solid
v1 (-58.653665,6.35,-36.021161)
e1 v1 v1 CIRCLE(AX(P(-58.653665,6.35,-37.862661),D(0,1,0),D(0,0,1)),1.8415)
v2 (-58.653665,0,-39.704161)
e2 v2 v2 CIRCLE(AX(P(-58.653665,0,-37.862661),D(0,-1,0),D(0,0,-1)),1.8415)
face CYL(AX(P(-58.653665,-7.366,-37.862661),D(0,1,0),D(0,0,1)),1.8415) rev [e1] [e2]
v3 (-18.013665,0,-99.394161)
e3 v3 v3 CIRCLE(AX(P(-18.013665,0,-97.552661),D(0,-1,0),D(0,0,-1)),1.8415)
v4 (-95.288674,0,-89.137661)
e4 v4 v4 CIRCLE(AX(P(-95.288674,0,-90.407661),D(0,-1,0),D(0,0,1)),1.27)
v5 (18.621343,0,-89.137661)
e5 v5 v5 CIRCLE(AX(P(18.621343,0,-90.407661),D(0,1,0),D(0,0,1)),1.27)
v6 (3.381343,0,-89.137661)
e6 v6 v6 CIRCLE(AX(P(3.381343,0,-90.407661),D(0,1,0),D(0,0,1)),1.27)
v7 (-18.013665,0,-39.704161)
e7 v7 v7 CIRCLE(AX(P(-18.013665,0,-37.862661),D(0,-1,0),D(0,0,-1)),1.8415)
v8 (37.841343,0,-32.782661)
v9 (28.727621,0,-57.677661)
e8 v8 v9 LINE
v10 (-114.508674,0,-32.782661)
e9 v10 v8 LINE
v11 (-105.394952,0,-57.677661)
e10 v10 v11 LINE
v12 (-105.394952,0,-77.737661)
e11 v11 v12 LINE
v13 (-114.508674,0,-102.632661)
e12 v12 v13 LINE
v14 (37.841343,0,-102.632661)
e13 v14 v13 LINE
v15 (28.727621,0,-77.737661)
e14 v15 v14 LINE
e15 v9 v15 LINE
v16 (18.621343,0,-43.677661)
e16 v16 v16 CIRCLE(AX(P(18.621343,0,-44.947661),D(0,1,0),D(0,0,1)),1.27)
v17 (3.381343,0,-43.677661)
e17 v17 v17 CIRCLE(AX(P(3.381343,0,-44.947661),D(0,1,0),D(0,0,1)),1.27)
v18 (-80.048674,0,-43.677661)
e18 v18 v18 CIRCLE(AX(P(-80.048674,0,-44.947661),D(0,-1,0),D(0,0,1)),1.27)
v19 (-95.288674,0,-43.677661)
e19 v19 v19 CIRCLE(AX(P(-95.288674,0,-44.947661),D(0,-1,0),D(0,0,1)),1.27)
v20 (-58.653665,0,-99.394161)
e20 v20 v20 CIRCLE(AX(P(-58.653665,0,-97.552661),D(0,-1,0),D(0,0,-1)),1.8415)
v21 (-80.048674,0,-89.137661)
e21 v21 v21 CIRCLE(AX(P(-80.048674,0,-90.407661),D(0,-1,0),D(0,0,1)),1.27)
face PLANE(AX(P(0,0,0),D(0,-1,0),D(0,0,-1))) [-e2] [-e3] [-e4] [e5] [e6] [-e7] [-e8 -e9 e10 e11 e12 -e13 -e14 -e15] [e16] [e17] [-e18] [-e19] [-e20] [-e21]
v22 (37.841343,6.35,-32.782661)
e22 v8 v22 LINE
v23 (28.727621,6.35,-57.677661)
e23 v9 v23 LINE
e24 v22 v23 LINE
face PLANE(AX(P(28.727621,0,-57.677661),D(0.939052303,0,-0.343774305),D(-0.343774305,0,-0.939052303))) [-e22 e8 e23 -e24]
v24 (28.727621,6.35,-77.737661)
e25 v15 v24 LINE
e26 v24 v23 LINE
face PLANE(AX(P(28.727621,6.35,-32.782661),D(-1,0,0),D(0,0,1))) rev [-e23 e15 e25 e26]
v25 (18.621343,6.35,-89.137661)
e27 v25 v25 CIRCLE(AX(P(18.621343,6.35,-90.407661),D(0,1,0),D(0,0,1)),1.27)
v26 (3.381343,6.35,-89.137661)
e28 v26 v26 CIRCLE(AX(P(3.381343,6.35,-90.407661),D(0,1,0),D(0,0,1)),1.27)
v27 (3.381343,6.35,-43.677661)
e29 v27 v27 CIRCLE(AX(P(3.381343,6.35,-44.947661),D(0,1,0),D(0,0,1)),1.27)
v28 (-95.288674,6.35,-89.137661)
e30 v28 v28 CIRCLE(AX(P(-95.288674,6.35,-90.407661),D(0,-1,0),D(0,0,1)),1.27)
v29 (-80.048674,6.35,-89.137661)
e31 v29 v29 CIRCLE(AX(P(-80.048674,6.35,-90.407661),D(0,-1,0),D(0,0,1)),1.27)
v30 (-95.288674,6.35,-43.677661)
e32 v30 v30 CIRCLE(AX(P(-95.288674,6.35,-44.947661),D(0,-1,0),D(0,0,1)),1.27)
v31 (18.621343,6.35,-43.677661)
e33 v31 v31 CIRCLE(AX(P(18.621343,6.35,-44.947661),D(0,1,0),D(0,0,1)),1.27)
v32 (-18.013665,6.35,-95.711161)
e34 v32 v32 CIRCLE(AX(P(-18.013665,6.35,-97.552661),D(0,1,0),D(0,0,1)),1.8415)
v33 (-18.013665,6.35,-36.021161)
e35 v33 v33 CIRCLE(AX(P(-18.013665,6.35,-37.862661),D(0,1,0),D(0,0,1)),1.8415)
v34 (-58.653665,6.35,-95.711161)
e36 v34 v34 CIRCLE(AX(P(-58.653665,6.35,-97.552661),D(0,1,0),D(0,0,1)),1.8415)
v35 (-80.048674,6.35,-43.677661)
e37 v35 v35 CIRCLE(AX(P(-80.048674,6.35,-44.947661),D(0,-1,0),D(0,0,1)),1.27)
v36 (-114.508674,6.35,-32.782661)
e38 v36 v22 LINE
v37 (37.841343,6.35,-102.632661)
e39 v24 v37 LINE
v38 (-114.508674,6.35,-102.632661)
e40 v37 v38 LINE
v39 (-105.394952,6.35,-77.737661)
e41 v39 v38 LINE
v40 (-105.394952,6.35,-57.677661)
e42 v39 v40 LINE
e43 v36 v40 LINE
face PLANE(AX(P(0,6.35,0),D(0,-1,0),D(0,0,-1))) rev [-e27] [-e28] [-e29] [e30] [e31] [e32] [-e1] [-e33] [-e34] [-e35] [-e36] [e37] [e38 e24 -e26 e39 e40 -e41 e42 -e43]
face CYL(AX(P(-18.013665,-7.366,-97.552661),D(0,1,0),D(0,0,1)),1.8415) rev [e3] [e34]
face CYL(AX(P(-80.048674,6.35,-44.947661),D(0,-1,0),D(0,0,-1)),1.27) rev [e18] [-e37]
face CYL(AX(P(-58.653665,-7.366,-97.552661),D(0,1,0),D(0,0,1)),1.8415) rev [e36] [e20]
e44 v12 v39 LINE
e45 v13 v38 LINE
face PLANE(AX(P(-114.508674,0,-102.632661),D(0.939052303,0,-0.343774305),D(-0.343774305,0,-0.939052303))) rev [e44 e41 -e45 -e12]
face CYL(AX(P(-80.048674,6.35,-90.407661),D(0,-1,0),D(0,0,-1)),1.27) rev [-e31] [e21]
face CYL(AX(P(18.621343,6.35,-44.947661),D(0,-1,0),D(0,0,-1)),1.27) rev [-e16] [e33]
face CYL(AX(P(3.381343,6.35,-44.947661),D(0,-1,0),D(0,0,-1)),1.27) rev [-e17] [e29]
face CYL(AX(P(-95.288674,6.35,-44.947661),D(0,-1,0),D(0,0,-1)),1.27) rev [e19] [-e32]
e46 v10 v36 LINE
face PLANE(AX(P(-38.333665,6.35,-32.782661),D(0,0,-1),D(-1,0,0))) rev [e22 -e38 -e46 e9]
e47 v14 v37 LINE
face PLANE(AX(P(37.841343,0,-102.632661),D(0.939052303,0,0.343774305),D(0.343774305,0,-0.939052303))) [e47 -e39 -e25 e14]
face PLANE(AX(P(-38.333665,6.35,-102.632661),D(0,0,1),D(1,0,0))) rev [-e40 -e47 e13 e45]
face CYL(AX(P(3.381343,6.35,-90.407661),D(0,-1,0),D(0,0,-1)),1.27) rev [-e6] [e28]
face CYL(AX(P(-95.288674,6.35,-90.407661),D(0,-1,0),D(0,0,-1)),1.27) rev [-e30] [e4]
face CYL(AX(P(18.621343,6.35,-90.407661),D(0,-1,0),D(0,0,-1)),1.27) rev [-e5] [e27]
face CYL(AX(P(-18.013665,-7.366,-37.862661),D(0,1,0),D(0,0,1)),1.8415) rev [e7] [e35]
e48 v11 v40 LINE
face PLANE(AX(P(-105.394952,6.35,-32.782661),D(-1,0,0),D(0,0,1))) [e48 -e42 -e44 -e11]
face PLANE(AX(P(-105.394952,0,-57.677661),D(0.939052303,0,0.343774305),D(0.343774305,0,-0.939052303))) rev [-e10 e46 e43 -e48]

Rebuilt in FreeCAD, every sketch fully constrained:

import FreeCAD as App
import Part
import Sketcher
from FreeCAD import Vector
Q = App.Units.Quantity

doc = App.newDocument("Part")
params = doc.addObject("Spreadsheet::Sheet", "Params")
for row, (alias, value) in enumerate([
    ("sketch1_diameter", "0.1 in"),
    ("sketch1_height", "2.75 in"),
    ("pad1_length", "0.25 in"),
    ("pad2_length", "0.5 in"),
    ("pad3_length", "0.25 in"),
    ("sketch5_diameter", "0.145 in"),
    ("pocket2_length", "0.54 in"),
], start=1):
    params.set(f"A{row}", alias)
    params.set(f"B{row}", "=" + value)
    params.setAlias(f"B{row}", alias)

body = doc.addObject("PartDesign::Body", "Body")

sketch1 = body.newObject("Sketcher::SketchObject", "Sketch")
sketch1.AttachmentSupport = (doc.getObject("XZ_Plane"), [""])
sketch1.MapMode = "FlatFace"
sketch1.addGeometry([
    Part.LineSegment(Vector(-38.3, -102.6, 0), Vector(-38.3, -32.8, 0)),
    Part.LineSegment(Vector(-38.3, -32.8, 0), Vector(28.7, -32.8, 0)),
    Part.LineSegment(Vector(28.7, -32.8, 0), Vector(28.7, -102.6, 0)),
    Part.LineSegment(Vector(28.7, -102.6, 0), Vector(-38.3, -102.6, 0)),
    Part.Circle(Vector(3.4, -44.9, 0), Vector(0, 0, 1), 1.3),
    Part.Circle(Vector(18.6, -44.9, 0), Vector(0, 0, 1), 1.3),
    Part.Circle(Vector(3.4, -90.4, 0), Vector(0, 0, 1), 1.3),
    Part.Circle(Vector(18.6, -90.4, 0), Vector(0, 0, 1), 1.3),
], False)
sketch1.addConstraint([
    Sketcher.Constraint("Coincident", 0, 2, 1, 1),
    Sketcher.Constraint("Coincident", 1, 2, 2, 1),
    Sketcher.Constraint("Coincident", 2, 2, 3, 1),
    Sketcher.Constraint("Coincident", 3, 2, 0, 1),
    Sketcher.Constraint("Vertical", 0),
    Sketcher.Constraint("Horizontal", 1),
    Sketcher.Constraint("Vertical", 2),
    Sketcher.Constraint("Horizontal", 3),
    Sketcher.Constraint("Equal", 4, 5),
    Sketcher.Constraint("Equal", 5, 6),
    Sketcher.Constraint("Equal", 6, 7),
    Sketcher.Constraint("Horizontal", 4, 3, 5, 3),
    Sketcher.Constraint("Horizontal", 6, 3, 7, 3),
    Sketcher.Constraint("Vertical", 4, 3, 6, 3),
    Sketcher.Constraint("Vertical", 5, 3, 7, 3),
    Sketcher.Constraint("Diameter", 4, Q("0.1 in")),
    Sketcher.Constraint("DistanceY", 0, 1, 0, 2, Q("2.75 in")),
    Sketcher.Constraint("DistanceX", 4, 3, 5, 3, Q("0.6 in")),
    Sketcher.Constraint("DistanceY", 6, 3, 4, 3, Q("45.46 mm")),
    Sketcher.Constraint("DistanceY", 4, 3, 0, 2, Q("12.165 mm")),
    Sketcher.Constraint("DistanceX", 1, 1, 1, 2, Q("67.061287 mm")),
    Sketcher.Constraint("DistanceY", 4, 3, -1, 1, Q("44.947661 mm")),
    Sketcher.Constraint("DistanceX", -1, 1, 1, 2, Q("28.727621 mm")),
    Sketcher.Constraint("DistanceX", 0, 2, 4, 3, Q("41.715009 mm")),
])
sketch1.setExpression("Constraints[15]", "Params.sketch1_diameter")
sketch1.setExpression("Constraints[16]", "Params.sketch1_height")
pad1 = body.newObject("PartDesign::Pad", "Pad")
pad1.Profile = sketch1
pad1.setExpression("Length", "Params.pad1_length")
pad1.Reversed = True

sketch2 = body.newObject("Sketcher::SketchObject", "Sketch001")
sketch2.AttachmentSupport = (doc.getObject("XZ_Plane"), [""])
sketch2.MapMode = "FlatFace"
sketch2.AttachmentOffset = App.Placement(Vector(0, 0, -0.25 * 25.4), App.Rotation())
sketch2.addGeometry([
    Part.LineSegment(Vector(8, -78, 0), Vector(8, -58, 0)),
    Part.LineSegment(Vector(8, -58, 0), Vector(29, -58, 0)),
    Part.LineSegment(Vector(29, -58, 0), Vector(29, -78, 0)),
    Part.LineSegment(Vector(29, -78, 0), Vector(8, -78, 0)),
], False)
sketch2.addConstraint([
    Sketcher.Constraint("Coincident", 0, 2, 1, 1),
    Sketcher.Constraint("Coincident", 1, 2, 2, 1),
    Sketcher.Constraint("Coincident", 2, 2, 3, 1),
    Sketcher.Constraint("Coincident", 3, 2, 0, 1),
    Sketcher.Constraint("Vertical", 0),
    Sketcher.Constraint("Horizontal", 1),
    Sketcher.Constraint("Vertical", 2),
    Sketcher.Constraint("Horizontal", 3),
    Sketcher.Constraint("DistanceY", 0, 1, 0, 2, Q("20.06 mm")),
    Sketcher.Constraint("DistanceX", 1, 1, 1, 2, Q("20.976278 mm")),
    Sketcher.Constraint("DistanceY", 0, 2, -1, 1, Q("57.677661 mm")),
    Sketcher.Constraint("DistanceX", -1, 1, 1, 2, Q("28.727621 mm")),
])
pad2 = body.newObject("PartDesign::Pad", "Pad001")
pad2.Profile = sketch2
pad2.setExpression("Length", "Params.pad2_length")
pad2.Reversed = True

sketch3 = body.newObject("Sketcher::SketchObject", "Sketch002")
sketch3.AttachmentSupport = (doc.getObject("XZ_Plane"), [""])
sketch3.MapMode = "FlatFace"
sketch3.AttachmentOffset = App.Placement(Vector(0, 0, -0.25 * 25.4), App.Rotation())
sketch3.addGeometry([
    Part.LineSegment(Vector(29, -78, 0), Vector(38, -103, 0)),
    Part.LineSegment(Vector(38, -103, 0), Vector(29, -103, 0)),
    Part.LineSegment(Vector(29, -103, 0), Vector(29, -78, 0)),
    Part.LineSegment(Vector(38, -33, 0), Vector(29, -58, 0)),
    Part.LineSegment(Vector(29, -58, 0), Vector(29, -33, 0)),
    Part.LineSegment(Vector(29, -33, 0), Vector(38, -33, 0)),
], False)
sketch3.addConstraint([
    Sketcher.Constraint("Coincident", 0, 2, 1, 1),
    Sketcher.Constraint("Coincident", 1, 2, 2, 1),
    Sketcher.Constraint("Coincident", 2, 2, 0, 1),
    Sketcher.Constraint("Coincident", 3, 2, 4, 1),
    Sketcher.Constraint("Coincident", 4, 2, 5, 1),
    Sketcher.Constraint("Coincident", 5, 2, 3, 1),
    Sketcher.Constraint("Horizontal", 1),
    Sketcher.Constraint("Vertical", 2),
    Sketcher.Constraint("Vertical", 4),
    Sketcher.Constraint("Horizontal", 5),
    Sketcher.Constraint("Vertical", 2, 2, 3, 2),
    Sketcher.Constraint("Vertical", 0, 2, 5, 2),
    Sketcher.Constraint("Equal", 2, 4),
    Sketcher.Constraint("DistanceY", 1, 2, 4, 2, Q("2.75 in")),
    Sketcher.Constraint("DistanceY", 2, 1, 2, 2, Q("24.895 mm")),
    Sketcher.Constraint("DistanceX", 1, 2, 1, 1, Q("9.113722 mm")),
    Sketcher.Constraint("DistanceY", 0, 2, -1, 1, Q("102.632661 mm")),
    Sketcher.Constraint("DistanceX", -1, 1, 1, 2, Q("28.727621 mm")),
])
pad3 = body.newObject("PartDesign::Pad", "Pad002")
pad3.Profile = sketch3
pad3.setExpression("Length", "Params.pad3_length")
doc.recompute()

datumplane = body.newObject("PartDesign::Plane", "DatumPlane")
datumplane.AttachmentSupport = (doc.getObject("YZ_Plane"), [""])
datumplane.MapMode = "FlatFace"
datumplane.AttachmentOffset = App.Placement(Vector(0, 0, -38.333665), App.Rotation())
mirrored = body.newObject("PartDesign::Mirrored", "Mirrored")
mirrored.Originals = [pad1, pad2, pad3]
mirrored.MirrorPlane = (datumplane, [""])
body.Tip = mirrored

sketch4 = body.newObject("Sketcher::SketchObject", "Sketch003")
sketch4.AttachmentSupport = (doc.getObject("XY_Plane"), [""])
sketch4.MapMode = "FlatFace"
sketch4.AttachmentOffset = App.Placement(Vector(0, 0, -32.782661), App.Rotation())
sketch4.addGeometry([
    Part.LineSegment(Vector(-133, 24, 0), Vector(-133, 6, 0)),
    Part.LineSegment(Vector(-133, 6, 0), Vector(38, 6, 0)),
    Part.LineSegment(Vector(38, 6, 0), Vector(38, 24, 0)),
    Part.LineSegment(Vector(38, 24, 0), Vector(-133, 24, 0)),
], False)
sketch4.addConstraint([
    Sketcher.Constraint("Coincident", 0, 2, 1, 1),
    Sketcher.Constraint("Coincident", 1, 2, 2, 1),
    Sketcher.Constraint("Coincident", 2, 2, 3, 1),
    Sketcher.Constraint("Coincident", 3, 2, 0, 1),
    Sketcher.Constraint("Vertical", 0),
    Sketcher.Constraint("Horizontal", 1),
    Sketcher.Constraint("Vertical", 2),
    Sketcher.Constraint("Horizontal", 3),
    Sketcher.Constraint("DistanceY", -1, 1, 0, 2, Q("0.25 in")),
    Sketcher.Constraint("DistanceX", 1, 1, 1, 2, Q("170.998259 mm")),
    Sketcher.Constraint("DistanceY", 0, 2, 0, 1, Q("17.997071 mm")),
    Sketcher.Constraint("DistanceX", 0, 2, -1, 1, Q("133.156916 mm")),
])
pocket1 = body.newObject("PartDesign::Pocket", "Pocket")
pocket1.Profile = sketch4
pocket1.Type = "ThroughAll"

sketch5 = body.newObject("Sketcher::SketchObject", "Sketch004")
sketch5.AttachmentSupport = (doc.getObject("XZ_Plane"), [""])
sketch5.MapMode = "FlatFace"
sketch5.AttachmentOffset = App.Placement(Vector(0, 0, -0.25 * 25.4), App.Rotation())
sketch5.addGeometry([
    Part.Circle(Vector(-58.7, -97.6, 0), Vector(0, 0, 1), 1.8),
    Part.Circle(Vector(-18, -97.6, 0), Vector(0, 0, 1), 1.8),
    Part.Circle(Vector(-18, -37.9, 0), Vector(0, 0, 1), 1.8),
    Part.Circle(Vector(-58.7, -37.9, 0), Vector(0, 0, 1), 1.8),
], False)
sketch5.addConstraint([
    Sketcher.Constraint("Equal", 0, 1),
    Sketcher.Constraint("Equal", 1, 2),
    Sketcher.Constraint("Equal", 2, 3),
    Sketcher.Constraint("Horizontal", 0, 3, 1, 3),
    Sketcher.Constraint("Horizontal", 2, 3, 3, 3),
    Sketcher.Constraint("Vertical", 1, 3, 2, 3),
    Sketcher.Constraint("Vertical", 0, 3, 3, 3),
    Sketcher.Constraint("Diameter", 0, Q("0.145 in")),
    Sketcher.Constraint("DistanceX", 0, 3, 1, 3, Q("1.6 in")),
    Sketcher.Constraint("DistanceY", 1, 3, 2, 3, Q("2.35 in")),
    Sketcher.Constraint("DistanceY", 0, 3, -1, 1, Q("97.552661 mm")),
    Sketcher.Constraint("DistanceX", 0, 3, -1, 1, Q("58.653665 mm")),
])
sketch5.setExpression("Constraints[7]", "Params.sketch5_diameter")
pocket2 = body.newObject("PartDesign::Pocket", "Pocket001")
pocket2.Profile = sketch5
pocket2.setExpression("Length", "Params.pocket2_length")
pocket2.Reversed = True

doc.recompute()
